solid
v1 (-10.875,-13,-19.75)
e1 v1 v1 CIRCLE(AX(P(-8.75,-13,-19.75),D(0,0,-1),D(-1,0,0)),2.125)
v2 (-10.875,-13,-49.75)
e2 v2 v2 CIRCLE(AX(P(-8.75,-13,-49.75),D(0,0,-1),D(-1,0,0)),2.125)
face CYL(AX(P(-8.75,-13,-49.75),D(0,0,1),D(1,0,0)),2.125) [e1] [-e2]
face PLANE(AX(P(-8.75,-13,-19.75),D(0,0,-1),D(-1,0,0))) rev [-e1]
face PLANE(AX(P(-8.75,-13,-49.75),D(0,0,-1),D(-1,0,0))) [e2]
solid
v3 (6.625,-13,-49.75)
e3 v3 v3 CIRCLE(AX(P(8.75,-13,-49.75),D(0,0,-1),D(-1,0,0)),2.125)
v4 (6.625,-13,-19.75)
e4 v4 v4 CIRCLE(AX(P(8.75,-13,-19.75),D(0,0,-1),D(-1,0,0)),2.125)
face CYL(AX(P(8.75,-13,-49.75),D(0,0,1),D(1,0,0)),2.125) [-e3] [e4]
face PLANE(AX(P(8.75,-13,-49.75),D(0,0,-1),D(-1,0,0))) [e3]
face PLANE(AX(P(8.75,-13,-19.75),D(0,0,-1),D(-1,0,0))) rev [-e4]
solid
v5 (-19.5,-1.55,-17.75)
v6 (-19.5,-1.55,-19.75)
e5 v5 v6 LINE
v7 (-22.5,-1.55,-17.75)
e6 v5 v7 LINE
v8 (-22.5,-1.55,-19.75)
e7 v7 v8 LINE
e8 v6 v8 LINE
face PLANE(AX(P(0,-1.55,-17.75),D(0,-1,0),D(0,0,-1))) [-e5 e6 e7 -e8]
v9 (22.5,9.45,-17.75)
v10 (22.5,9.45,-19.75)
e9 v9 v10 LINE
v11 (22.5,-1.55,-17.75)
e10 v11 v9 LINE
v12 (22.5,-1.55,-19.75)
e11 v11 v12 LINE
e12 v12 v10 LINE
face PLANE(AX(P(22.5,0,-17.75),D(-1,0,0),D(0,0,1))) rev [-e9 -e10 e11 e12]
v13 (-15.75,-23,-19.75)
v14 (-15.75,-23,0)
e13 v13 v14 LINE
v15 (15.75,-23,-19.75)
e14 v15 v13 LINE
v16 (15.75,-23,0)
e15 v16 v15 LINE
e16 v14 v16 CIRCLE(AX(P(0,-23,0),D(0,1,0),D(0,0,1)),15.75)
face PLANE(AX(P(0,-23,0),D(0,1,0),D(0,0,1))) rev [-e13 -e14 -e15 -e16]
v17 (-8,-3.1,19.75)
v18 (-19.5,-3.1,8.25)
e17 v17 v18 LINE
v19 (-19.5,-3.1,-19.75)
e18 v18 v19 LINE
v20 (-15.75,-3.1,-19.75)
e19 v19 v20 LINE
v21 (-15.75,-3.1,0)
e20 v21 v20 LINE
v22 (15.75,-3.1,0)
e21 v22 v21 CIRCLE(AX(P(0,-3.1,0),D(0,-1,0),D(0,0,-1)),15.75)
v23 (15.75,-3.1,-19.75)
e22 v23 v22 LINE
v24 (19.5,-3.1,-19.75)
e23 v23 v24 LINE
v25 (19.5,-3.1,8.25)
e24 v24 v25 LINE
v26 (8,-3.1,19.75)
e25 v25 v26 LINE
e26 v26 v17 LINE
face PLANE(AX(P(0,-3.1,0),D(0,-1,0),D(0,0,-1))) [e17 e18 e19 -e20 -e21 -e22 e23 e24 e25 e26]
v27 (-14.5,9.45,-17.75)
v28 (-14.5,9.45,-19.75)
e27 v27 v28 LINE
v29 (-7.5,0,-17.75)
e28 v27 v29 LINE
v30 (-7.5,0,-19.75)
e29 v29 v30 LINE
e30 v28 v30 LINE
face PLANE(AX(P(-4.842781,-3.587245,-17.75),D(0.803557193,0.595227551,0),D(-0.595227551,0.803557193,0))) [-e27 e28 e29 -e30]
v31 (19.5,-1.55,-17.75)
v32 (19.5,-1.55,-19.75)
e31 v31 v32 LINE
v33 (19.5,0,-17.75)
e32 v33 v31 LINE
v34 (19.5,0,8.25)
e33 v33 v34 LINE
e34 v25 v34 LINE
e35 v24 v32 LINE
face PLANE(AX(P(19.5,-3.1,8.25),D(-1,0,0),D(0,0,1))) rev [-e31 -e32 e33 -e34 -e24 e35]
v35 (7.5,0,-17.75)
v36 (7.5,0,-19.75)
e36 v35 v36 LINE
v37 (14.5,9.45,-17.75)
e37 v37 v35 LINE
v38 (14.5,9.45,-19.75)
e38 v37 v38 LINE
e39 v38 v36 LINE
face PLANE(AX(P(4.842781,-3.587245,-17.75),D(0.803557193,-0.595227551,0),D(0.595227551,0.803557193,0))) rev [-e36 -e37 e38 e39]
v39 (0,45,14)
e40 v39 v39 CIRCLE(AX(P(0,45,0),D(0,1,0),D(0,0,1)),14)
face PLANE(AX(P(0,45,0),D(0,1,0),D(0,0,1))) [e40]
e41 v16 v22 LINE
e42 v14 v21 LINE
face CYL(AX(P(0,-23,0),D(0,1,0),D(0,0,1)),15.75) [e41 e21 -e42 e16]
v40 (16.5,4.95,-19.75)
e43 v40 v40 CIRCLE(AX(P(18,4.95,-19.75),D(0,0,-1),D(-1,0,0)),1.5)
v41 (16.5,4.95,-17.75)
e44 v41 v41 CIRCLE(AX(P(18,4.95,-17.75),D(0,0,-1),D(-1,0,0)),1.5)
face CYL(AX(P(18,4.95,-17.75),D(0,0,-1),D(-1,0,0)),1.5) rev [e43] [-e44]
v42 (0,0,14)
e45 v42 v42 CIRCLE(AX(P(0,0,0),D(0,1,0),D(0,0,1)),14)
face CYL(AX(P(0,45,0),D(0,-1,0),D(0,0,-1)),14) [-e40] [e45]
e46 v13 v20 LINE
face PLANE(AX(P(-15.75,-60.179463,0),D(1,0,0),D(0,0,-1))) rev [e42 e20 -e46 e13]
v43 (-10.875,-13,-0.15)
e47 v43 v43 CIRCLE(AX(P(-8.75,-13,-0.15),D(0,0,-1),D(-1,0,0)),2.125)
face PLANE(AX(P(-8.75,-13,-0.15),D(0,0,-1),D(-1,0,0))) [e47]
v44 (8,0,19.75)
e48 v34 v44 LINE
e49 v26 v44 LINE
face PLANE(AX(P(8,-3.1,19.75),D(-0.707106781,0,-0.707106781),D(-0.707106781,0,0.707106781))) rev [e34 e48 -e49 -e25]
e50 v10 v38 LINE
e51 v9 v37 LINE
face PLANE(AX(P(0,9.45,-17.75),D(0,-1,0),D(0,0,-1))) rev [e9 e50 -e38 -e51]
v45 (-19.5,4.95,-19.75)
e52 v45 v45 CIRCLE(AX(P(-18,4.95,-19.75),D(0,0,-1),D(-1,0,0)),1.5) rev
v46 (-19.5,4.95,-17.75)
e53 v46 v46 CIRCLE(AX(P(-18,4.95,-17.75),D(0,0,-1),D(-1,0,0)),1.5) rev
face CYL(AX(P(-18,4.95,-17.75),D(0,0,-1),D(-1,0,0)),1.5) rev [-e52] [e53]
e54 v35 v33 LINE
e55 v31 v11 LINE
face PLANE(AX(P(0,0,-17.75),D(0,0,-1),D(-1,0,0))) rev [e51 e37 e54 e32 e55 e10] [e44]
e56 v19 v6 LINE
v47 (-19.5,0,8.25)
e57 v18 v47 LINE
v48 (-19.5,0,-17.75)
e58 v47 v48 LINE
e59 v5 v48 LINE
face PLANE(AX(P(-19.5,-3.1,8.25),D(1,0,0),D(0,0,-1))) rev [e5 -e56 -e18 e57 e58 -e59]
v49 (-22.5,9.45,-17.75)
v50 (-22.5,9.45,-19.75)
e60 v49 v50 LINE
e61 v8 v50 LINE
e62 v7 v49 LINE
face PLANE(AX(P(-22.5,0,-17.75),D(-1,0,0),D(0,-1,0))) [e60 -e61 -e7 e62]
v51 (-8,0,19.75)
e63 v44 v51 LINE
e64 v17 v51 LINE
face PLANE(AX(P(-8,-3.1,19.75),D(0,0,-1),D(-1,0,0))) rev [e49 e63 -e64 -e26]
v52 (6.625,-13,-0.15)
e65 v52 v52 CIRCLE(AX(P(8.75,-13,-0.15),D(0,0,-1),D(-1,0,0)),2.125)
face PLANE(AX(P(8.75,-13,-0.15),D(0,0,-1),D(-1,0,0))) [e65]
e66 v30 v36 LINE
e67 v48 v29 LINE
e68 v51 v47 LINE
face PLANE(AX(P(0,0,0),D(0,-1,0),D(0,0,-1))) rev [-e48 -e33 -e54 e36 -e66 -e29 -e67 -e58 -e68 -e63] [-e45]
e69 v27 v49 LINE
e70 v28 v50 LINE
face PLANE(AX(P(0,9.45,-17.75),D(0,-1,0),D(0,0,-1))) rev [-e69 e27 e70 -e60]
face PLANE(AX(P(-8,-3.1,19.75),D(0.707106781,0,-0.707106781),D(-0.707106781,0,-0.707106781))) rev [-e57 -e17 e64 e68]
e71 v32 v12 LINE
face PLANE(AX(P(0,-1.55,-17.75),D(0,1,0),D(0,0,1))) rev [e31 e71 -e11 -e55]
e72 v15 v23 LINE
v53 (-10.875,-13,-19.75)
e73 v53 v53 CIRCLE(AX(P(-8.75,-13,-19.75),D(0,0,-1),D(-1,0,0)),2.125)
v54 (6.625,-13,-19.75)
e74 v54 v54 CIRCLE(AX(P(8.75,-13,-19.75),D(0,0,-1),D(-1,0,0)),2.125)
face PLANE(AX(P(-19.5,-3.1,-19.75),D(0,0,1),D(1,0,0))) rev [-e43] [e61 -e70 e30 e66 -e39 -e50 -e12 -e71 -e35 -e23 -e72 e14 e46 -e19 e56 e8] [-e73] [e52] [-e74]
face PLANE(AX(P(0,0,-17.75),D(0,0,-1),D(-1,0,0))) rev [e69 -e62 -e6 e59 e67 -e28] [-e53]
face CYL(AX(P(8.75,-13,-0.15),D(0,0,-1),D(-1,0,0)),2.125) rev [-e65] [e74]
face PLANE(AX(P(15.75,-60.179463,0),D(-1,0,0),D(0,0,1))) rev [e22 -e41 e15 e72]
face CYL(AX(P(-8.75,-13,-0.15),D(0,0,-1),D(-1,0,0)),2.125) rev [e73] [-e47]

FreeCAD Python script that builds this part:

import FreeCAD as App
import Part
import Sketcher


def add_polygon(sketch, points):
    """Adds a closed chain of lines whose ends are joined by coincident constraints."""
    first, n = sketch.GeometryCount, len(points)
    for a, b in zip(points, points[1:] + points[:1]):
        sketch.addGeometry(Part.LineSegment(App.Vector(*a, 0), App.Vector(*b, 0)), False)
    for i in range(n):
        sketch.addConstraint(Sketcher.Constraint("Coincident", first + i, 2, first + (i + 1) % n, 1))

doc = App.newDocument("Part")
body = doc.addObject("PartDesign::Body", "Body")

sketch1 = doc.addObject("Sketcher::SketchObject", "Sketch")
body.addObject(sketch1)
sketch1.AttachmentSupport = (doc.XZ_Plane, [""])
sketch1.MapMode = "FlatFace"
sketch1.addGeometry(Part.Circle(App.Vector(0, 0, 0), App.Vector(0, 0, 1), 14), False)
sketch1.addConstraint([
    Sketcher.Constraint("Coincident", 0, 3, -1, 1),
    Sketcher.Constraint("Diameter", 0, 28.0),
])
pad1 = doc.addObject("PartDesign::Pad", "Pad")
body.addObject(pad1)
pad1.Profile = sketch1
pad1.Length = 45
pad1.Reversed = True

sketch2 = doc.addObject("Sketcher::SketchObject", "Sketch001")
body.addObject(sketch2)
sketch2.AttachmentSupport = (doc.XZ_Plane, [""])
sketch2.MapMode = "FlatFace"
add_polygon(sketch2, [(-8, 20), (-20, 8), (-20, -20), (20, -20), (20, 8), (8, 20)])
sketch2.addConstraint([
    Sketcher.Constraint("Vertical", 1),
    Sketcher.Constraint("Horizontal", 2),
    Sketcher.Constraint("Vertical", 3),
    Sketcher.Constraint("Horizontal", 5),
    Sketcher.Constraint("Symmetric", 0, 2, 3, 2, -2),
    Sketcher.Constraint("Perpendicular", 0, 4),
    Sketcher.Constraint("Equal", 0, 4),
    Sketcher.Constraint("DistanceX", 2, 1, 2, 2, 39.0),
    Sketcher.Constraint("DistanceX", 5, 2, 5, 1, 16.0),
    Sketcher.Constraint("DistanceY", 1, 2, 1, 1, 28.0),
    Sketcher.Constraint("DistanceY", -1, 1, 0, 2, 8.25),
])
pad2 = doc.addObject("PartDesign::Pad", "Pad001")
body.addObject(pad2)
pad2.Profile = sketch2
pad2.Length = 3.1

sketch3 = doc.addObject("Sketcher::SketchObject", "Sketch002")
body.addObject(sketch3)
sketch3.AttachmentSupport = (doc.XZ_Plane, [""])
sketch3.MapMode = "FlatFace"
sketch3.addGeometry(Part.Circle(App.Vector(0, 0, 0), App.Vector(0, 0, 1), 16), False)
sketch3.addConstraint([
    Sketcher.Constraint("Coincident", 0, 3, -1, 1),
    Sketcher.Constraint("Diameter", 0, 31.5),
])
pad3 = doc.addObject("PartDesign::Pad", "Pad002")
body.addObject(pad3)
pad3.Profile = sketch3
pad3.Length = 23

sketch4 = doc.addObject("Sketcher::SketchObject", "Sketch003")
body.addObject(sketch4)
sketch4.AttachmentSupport = (doc.XZ_Plane, [""])
sketch4.MapMode = "FlatFace"
sketch4.AttachmentOffset = App.Placement(App.Vector(0, 0, 3.1), App.Rotation())
add_polygon(sketch4, [(-16, 0), (-16, -20), (16, -20), (16, 0)])
sketch4.addConstraint([
    Sketcher.Constraint("Vertical", 0),
    Sketcher.Constraint("Horizontal", 1),
    Sketcher.Constraint("Vertical", 2),
    Sketcher.Constraint("Horizontal", 3),
    Sketcher.Constraint("Symmetric", 2, 2, 3, 2, -1, 1),
    Sketcher.Constraint("DistanceX", 1, 1, 1, 2, 31.5),
    Sketcher.Constraint("DistanceY", 0, 2, 0, 1, 19.75),
])
pad4 = doc.addObject("PartDesign::Pad", "Pad003")
body.addObject(pad4)
pad4.Profile = sketch4
pad4.Length = 19.9

sketch5 = doc.addObject("Sketcher::SketchObject", "Sketch004")
body.addObject(sketch5)
sketch5.AttachmentSupport = (doc.XY_Plane, [""])
sketch5.MapMode = "FlatFace"
sketch5.AttachmentOffset = App.Placement(App.Vector(0, 0, -19.75), App.Rotation())
sketch5.addGeometry([
    Part.Circle(App.Vector(8.8, -13, 0), App.Vector(0, 0, 1), 2.1),
    Part.Circle(App.Vector(-8.8, -13, 0), App.Vector(0, 0, 1), 2.1),
], False)
sketch5.addConstraint([
    Sketcher.Constraint("Equal", 0, 1),
    Sketcher.Constraint("Symmetric", 0, 3, 1, 3, -2),
    Sketcher.Constraint("Diameter", 0, 4.25),
    Sketcher.Constraint("DistanceY", 0, 3, -1, 1, 13.0),
    Sketcher.Constraint("DistanceX", 1, 3, 0, 3, 17.5),
])
pocket1 = doc.addObject("PartDesign::Pocket", "Pocket")
body.addObject(pocket1)
pocket1.Profile = sketch5
pocket1.Length = 19.6
pocket1.Reversed = True

sketch6 = doc.addObject("Sketcher::SketchObject", "Sketch005")
body.addObject(sketch6)
sketch6.AttachmentSupport = (doc.XY_Plane, [""])
sketch6.MapMode = "FlatFace"
sketch6.AttachmentOffset = App.Placement(App.Vector(0, 0, -19.75), App.Rotation())
add_polygon(sketch6, [(22.5, -1.6), (19.5, -1.6), (19.5, 0), (7.5, 0), (14.5, 9.4), (22.5, 9.4)])
sketch6.addGeometry(Part.Circle(App.Vector(18, 5, 0), App.Vector(0, 0, 1), 1.5), False)
add_polygon(sketch6, [(-14.5, 9.4), (-7.5, 0), (-19.5, 0), (-19.5, -1.6), (-22.5, -1.6), (-22.5, 9.4)])
sketch6.addGeometry(Part.Circle(App.Vector(-18, 5, 0), App.Vector(0, 0, 1), 1.5), False)
sketch6.addConstraint([
    Sketcher.Constraint("Horizontal", 0),
    Sketcher.Constraint("Vertical", 1),
    Sketcher.Constraint("Horizontal", 2),
    Sketcher.Constraint("Horizontal", 4),
    Sketcher.Constraint("Vertical", 5),
    Sketcher.Constraint("Horizontal", 8),
    Sketcher.Constraint("Vertical", 9),
    Sketcher.Constraint("Horizontal", 10),
    Sketcher.Constraint("Vertical", 11),
    Sketcher.Constraint("Horizontal", 12),
    Sketcher.Constraint("Equal", 6, 13),
    Sketcher.Constraint("Symmetric", 2, 2, 7, 2, -1, 1),
    Sketcher.Constraint("Symmetric", 6, 3, 13, 3, -2),
    Sketcher.Constraint("Symmetric", 1, 2, 8, 2, -2),
    Sketcher.Constraint("Symmetric", 5, 2, 10, 2, -2),
    Sketcher.Constraint("Symmetric", 3, 2, 12, 2, -2),
    Sketcher.Constraint("Diameter", 6, 3.0),
    Sketcher.Constraint("DistanceX", 0, 2, 0, 1, 3.0),
    Sketcher.Constraint("DistanceX", 2, 2, 2, 1, 12.0),
    Sketcher.Constraint("DistanceX", 4, 1, 4, 2, 8.0),
    Sketcher.Constraint("DistanceY", 5, 2, 5, 1, 11.0),
    Sketcher.Constraint("DistanceX", -1, 1, 6, 3, 18.0),
    Sketcher.Constraint("DistanceX", 7, 2, 2, 2, 15.0),
    Sketcher.Constraint("DistanceY", 1, 1, 1, 2, 1.55),
    Sketcher.Constraint("DistanceY", 0, 2, 6, 3, 6.5),
])
pad5 = doc.addObject("PartDesign::Pad", "Pad004")
body.addObject(pad5)
pad5.Profile = sketch6
pad5.Length = 2
body2 = doc.addObject("PartDesign::Body", "Body001")

sketch7 = doc.addObject("Sketcher::SketchObject", "Sketch006")
body2.addObject(sketch7)
sketch7.AttachmentSupport = (doc.getObject("XY_Plane001"), [""])
sketch7.MapMode = "FlatFace"
sketch7.AttachmentOffset = App.Placement(App.Vector(0, 0, -19.75), App.Rotation())
sketch7.addGeometry(Part.Circle(App.Vector(8.8, -13, 0), App.Vector(0, 0, 1), 2.1), False)
sketch7.addConstraint([
    Sketcher.Constraint("Diameter", 0, 4.25),
    Sketcher.Constraint("DistanceY", 0, 3, -1, 1, 13.0),
    Sketcher.Constraint("DistanceX", -1, 1, 0, 3, 8.75),
])
pad6 = doc.addObject("PartDesign::Pad", "Pad005")
body2.addObject(pad6)
pad6.Profile = sketch7
pad6.Length = 30
pad6.Reversed = True
body3 = doc.addObject("PartDesign::Body", "Body002")

sketch8 = doc.addObject("Sketcher::SketchObject", "Sketch007")
body3.addObject(sketch8)
sketch8.AttachmentSupport = (doc.getObject("XY_Plane002"), [""])
sketch8.MapMode = "FlatFace"
sketch8.AttachmentOffset = App.Placement(App.Vector(0, 0, -19.75), App.Rotation())
sketch8.addGeometry(Part.Circle(App.Vector(-8.8, -13, 0), App.Vector(0, 0, 1), 2.1), False)
sketch8.addConstraint([
    Sketcher.Constraint("Diameter", 0, 4.25),
    Sketcher.Constraint("DistanceY", 0, 3, -1, 1, 13.0),
    Sketcher.Constraint("DistanceX", 0, 3, -1, 1, 8.75),
])
pad7 = doc.addObject("PartDesign::Pad", "Pad006")
body3.addObject(pad7)
pad7.Profile = sketch8
pad7.Length = 30
pad7.Reversed = True

doc.recompute()
